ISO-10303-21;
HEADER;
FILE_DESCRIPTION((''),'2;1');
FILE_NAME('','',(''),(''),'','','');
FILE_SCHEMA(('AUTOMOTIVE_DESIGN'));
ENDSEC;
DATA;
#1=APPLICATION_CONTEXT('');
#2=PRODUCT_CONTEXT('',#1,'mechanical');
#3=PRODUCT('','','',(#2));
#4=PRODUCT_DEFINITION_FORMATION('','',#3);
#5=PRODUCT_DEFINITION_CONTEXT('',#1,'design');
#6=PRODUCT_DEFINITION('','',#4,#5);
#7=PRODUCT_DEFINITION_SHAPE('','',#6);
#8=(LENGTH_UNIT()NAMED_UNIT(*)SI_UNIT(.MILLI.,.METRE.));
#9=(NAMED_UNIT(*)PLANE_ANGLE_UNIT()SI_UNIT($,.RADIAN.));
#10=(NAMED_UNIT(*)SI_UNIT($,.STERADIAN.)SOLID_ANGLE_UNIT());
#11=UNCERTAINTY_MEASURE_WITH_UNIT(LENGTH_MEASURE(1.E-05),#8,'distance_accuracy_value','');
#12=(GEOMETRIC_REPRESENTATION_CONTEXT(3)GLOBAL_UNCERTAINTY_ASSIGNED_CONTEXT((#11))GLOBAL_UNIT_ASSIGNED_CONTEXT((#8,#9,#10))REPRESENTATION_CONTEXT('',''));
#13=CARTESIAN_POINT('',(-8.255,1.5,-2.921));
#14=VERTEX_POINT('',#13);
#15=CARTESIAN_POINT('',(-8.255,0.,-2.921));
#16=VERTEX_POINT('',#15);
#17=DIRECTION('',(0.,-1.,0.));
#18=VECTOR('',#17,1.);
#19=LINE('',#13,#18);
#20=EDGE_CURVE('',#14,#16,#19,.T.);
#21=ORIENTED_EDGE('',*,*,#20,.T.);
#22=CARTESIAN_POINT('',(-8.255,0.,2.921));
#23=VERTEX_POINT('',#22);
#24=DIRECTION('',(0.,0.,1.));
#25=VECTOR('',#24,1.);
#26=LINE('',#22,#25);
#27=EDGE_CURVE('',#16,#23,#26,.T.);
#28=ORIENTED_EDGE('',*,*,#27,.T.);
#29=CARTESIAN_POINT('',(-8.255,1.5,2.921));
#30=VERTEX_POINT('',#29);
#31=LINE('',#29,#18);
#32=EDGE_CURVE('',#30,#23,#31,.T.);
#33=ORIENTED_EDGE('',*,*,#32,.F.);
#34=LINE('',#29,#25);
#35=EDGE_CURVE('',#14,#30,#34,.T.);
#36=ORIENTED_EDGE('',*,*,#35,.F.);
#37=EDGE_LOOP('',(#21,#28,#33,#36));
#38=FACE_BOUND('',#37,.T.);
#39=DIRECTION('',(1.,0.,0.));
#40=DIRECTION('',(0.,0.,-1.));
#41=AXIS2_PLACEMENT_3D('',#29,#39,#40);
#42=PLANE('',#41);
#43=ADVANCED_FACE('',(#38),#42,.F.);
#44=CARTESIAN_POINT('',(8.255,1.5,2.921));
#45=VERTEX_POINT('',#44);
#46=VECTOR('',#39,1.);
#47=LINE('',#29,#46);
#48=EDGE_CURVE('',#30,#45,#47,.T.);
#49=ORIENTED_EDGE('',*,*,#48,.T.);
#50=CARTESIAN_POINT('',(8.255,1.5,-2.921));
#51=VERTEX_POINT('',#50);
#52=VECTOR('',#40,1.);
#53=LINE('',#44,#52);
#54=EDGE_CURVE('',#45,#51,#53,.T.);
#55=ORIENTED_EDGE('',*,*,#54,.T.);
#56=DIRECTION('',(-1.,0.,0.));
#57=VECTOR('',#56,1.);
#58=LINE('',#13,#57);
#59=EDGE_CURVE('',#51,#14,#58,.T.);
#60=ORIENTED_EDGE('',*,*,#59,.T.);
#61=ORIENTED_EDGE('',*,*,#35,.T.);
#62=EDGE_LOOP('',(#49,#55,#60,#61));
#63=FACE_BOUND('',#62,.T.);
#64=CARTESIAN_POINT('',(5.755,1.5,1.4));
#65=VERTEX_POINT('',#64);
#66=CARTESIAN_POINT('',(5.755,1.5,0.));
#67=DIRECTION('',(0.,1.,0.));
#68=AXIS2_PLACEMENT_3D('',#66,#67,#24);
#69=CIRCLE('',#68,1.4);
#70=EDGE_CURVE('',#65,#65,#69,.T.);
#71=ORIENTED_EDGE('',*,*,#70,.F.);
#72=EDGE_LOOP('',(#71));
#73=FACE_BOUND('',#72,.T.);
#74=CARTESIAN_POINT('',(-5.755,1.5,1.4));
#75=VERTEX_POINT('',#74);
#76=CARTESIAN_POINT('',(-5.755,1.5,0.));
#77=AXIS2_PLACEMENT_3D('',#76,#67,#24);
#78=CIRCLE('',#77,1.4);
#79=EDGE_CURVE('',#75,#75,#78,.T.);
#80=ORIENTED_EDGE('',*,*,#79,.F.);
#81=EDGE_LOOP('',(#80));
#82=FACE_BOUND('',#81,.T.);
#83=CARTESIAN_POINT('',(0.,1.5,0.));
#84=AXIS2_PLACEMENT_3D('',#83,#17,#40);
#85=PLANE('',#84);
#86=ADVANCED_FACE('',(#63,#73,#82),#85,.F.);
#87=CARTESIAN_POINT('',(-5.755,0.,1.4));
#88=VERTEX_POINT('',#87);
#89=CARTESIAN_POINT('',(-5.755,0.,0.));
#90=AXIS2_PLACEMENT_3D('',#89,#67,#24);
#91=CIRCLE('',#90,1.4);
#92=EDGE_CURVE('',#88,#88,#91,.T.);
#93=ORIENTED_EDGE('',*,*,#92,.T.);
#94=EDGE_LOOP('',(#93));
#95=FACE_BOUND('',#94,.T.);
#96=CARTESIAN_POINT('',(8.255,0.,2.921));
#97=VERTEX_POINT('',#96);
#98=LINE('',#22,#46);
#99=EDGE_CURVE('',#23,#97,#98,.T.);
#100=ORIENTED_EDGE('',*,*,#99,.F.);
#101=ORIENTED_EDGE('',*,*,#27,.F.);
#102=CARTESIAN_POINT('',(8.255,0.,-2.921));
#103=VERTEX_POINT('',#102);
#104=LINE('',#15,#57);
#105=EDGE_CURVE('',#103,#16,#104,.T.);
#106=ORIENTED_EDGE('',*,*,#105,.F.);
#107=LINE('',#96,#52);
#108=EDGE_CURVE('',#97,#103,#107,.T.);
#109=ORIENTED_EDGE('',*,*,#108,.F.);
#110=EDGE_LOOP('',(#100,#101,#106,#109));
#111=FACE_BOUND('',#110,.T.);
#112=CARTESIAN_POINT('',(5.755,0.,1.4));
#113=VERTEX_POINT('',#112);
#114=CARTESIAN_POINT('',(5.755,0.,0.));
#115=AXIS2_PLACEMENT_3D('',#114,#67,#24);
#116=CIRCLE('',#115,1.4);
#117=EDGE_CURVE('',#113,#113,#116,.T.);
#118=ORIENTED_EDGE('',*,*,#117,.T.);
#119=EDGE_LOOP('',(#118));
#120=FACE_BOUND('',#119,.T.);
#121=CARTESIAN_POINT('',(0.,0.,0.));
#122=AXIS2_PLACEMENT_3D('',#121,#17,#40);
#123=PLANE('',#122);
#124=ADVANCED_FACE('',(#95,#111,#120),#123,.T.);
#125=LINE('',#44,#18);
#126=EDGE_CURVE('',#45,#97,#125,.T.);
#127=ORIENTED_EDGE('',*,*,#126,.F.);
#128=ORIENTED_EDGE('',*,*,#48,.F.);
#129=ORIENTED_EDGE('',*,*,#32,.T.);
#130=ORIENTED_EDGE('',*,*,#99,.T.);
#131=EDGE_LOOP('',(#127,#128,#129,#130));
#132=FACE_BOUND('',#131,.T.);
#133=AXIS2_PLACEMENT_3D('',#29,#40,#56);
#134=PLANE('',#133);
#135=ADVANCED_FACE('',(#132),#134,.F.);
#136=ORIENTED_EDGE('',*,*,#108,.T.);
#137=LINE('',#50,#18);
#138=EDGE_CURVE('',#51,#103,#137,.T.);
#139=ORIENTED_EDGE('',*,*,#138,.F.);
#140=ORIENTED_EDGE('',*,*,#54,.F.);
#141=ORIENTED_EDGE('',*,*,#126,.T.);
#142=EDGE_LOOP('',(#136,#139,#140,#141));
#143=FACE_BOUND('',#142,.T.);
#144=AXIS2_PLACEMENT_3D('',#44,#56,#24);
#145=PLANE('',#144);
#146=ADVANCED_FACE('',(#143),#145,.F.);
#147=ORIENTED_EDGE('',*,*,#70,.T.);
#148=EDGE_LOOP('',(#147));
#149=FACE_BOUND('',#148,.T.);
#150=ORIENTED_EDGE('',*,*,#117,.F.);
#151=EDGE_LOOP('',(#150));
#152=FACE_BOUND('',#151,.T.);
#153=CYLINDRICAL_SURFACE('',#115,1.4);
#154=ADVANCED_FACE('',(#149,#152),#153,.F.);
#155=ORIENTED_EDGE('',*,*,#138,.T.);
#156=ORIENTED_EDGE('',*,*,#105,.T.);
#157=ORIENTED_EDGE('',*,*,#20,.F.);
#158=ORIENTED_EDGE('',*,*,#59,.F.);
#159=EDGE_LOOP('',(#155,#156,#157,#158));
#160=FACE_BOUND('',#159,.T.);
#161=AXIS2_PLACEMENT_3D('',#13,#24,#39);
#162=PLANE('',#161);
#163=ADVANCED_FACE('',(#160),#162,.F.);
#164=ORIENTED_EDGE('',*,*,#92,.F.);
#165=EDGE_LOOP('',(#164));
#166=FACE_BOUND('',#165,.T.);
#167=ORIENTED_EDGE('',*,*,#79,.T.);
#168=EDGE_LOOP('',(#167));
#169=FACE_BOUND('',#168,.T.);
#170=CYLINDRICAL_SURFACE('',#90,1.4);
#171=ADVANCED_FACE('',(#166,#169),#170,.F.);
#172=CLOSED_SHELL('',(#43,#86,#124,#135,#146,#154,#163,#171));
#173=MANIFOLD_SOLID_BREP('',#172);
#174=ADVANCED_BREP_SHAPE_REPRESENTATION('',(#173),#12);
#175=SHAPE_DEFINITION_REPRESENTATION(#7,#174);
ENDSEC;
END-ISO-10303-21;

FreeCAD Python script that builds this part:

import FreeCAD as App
import Part
import Sketcher
from FreeCAD import Vector
Q = App.Units.Quantity

doc = App.newDocument("Part")
body = doc.addObject("PartDesign::Body", "Body")

# Sketch on XZ plane
sketch1 = body.newObject("Sketcher::SketchObject", "Sketch")
sketch1.AttachmentSupport = (doc.getObject("XZ_Plane"), [""])
sketch1.MapMode = "FlatFace"
sketch1.addGeometry([
    Part.LineSegment(Vector(-8, -3, 0), Vector(-8, 3, 0)),
    Part.LineSegment(Vector(-8, 3, 0), Vector(8, 3, 0)),
    Part.LineSegment(Vector(8, 3, 0), Vector(8, -3, 0)),
    Part.LineSegment(Vector(8, -3, 0), Vector(-8, -3, 0)),
], False)
sketch1.addConstraint([
    Sketcher.Constraint("Coincident", 0, 2, 1, 1),
    Sketcher.Constraint("Coincident", 1, 2, 2, 1),
    Sketcher.Constraint("Coincident", 2, 2, 3, 1),
    Sketcher.Constraint("Coincident", 3, 2, 0, 1),
    Sketcher.Constraint("Vertical", 0),
    Sketcher.Constraint("Horizontal", 1),
    Sketcher.Constraint("Vertical", 2),
    Sketcher.Constraint("Horizontal", 3),
    Sketcher.Constraint("Symmetric", 0, 2, 2, 2, -1, 1),
    Sketcher.Constraint("DistanceX", 1, 1, 1, 2, Q("16.51 mm")),
    Sketcher.Constraint("DistanceY", 0, 1, 0, 2, Q("5.842 mm")),
])
pad1 = body.newObject("PartDesign::Pad", "Pad")
pad1.Profile = sketch1
pad1.Length = 1.5
pad1.Reversed = True

# Sketch on XZ plane
sketch2 = body.newObject("Sketcher::SketchObject", "Sketch001")
sketch2.AttachmentSupport = (doc.getObject("XZ_Plane"), [""])
sketch2.MapMode = "FlatFace"
sketch2.AttachmentOffset = App.Placement(Vector(0, 0, -1.5), App.Rotation())
sketch2.addGeometry([
    Part.Circle(Vector(-5.8, 0, 0), Vector(0, 0, 1), 1.4),
    Part.Circle(Vector(5.8, 0, 0), Vector(0, 0, 1), 1.4),
], False)
sketch2.addConstraint([
    Sketcher.Constraint("Equal", 0, 1),
    Sketcher.Constraint("Symmetric", 0, 3, 1, 3, -1, 1),
    Sketcher.Constraint("PointOnObject", 0, 3, -1),
    Sketcher.Constraint("Diameter", 0, Q("2.8 mm")),
    Sketcher.Constraint("DistanceX", 0, 3, 1, 3, Q("11.51 mm")),
])
pocket1 = body.newObject("PartDesign::Pocket", "Pocket")
pocket1.Profile = sketch2
pocket1.Length = 1.5
pocket1.Reversed = True

doc.recompute()
